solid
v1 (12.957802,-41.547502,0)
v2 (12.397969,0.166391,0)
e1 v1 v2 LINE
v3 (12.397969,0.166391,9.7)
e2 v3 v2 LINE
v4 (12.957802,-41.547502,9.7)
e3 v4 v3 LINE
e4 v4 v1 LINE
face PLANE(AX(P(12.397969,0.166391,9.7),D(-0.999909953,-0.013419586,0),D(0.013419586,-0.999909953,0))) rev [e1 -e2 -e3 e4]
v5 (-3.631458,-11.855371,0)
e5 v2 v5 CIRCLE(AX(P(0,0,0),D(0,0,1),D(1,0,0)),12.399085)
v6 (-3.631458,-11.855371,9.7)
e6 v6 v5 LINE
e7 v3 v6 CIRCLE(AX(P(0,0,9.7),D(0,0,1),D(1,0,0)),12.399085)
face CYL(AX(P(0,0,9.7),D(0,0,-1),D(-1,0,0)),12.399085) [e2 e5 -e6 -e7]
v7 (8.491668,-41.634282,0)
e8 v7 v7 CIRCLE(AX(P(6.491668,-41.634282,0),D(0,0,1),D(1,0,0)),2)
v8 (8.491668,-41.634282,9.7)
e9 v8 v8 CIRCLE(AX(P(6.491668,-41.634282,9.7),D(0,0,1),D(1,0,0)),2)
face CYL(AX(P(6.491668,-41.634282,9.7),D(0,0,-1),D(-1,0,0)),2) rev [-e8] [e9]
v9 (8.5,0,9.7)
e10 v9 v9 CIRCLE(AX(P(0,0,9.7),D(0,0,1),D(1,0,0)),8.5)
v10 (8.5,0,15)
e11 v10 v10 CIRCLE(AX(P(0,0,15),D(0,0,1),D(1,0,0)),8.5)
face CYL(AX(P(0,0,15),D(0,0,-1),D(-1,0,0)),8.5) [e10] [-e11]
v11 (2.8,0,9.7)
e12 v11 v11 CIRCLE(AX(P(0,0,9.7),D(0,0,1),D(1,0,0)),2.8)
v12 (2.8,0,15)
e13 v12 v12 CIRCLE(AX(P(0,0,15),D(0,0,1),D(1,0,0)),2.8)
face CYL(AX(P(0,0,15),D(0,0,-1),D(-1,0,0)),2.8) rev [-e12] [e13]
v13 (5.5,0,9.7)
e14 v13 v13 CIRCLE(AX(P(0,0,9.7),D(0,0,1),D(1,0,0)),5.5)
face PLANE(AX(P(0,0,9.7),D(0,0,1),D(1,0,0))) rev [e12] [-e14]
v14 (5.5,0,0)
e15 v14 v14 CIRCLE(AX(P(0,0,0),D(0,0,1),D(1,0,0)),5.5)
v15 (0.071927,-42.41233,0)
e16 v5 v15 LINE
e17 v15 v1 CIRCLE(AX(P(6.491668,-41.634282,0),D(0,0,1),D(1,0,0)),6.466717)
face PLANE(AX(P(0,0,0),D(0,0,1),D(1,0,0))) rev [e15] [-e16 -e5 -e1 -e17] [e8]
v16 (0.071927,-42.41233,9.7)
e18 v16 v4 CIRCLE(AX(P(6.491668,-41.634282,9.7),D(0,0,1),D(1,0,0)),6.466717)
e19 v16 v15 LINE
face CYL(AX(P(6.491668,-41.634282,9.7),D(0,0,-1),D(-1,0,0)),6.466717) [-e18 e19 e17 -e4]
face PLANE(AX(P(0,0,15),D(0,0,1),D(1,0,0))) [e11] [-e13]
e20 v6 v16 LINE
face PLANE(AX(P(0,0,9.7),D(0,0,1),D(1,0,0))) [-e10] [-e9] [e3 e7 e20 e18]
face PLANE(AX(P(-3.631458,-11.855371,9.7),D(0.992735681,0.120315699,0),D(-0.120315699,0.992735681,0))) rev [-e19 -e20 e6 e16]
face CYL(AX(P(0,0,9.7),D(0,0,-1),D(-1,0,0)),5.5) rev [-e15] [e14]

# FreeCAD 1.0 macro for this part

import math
import FreeCAD as App
import Part
import Sketcher

V = App.Vector

doc = App.newDocument("Part")
body = doc.addObject("PartDesign::Body", "Body")

# Sketch on XY plane
sketch1 = body.newObject("Sketcher::SketchObject", "Sketch")
sketch1.AttachmentSupport = (doc.getObject("XY_Plane"), [""])
sketch1.MapMode = "FlatFace"
sketch1.addGeometry([
    Part.LineSegment(V(-3.631458, -11.855371, 0), V(0.071927, -42.41233, 0)),  # 0
    Part.ArcOfCircle(Part.Circle(V(6.491668, -41.634282, 0), V(0, 0, 1), 6.466717), math.radians(-173.089677), math.radians(0.768909)),  # 1
    Part.LineSegment(V(12.957802, -41.547502, 0), V(12.397969, 0.166391, 0)),  # 2
    Part.ArcOfCircle(Part.Circle(V(0, 0, 0), V(0, 0, 1), 12.399085), math.radians(0.768909), math.radians(252.969478)),  # 3
    Part.Circle(V(6.491668, -41.634282, 0), V(0, 0, 1), 2),  # 4
    Part.Circle(V(0, 0, 0), V(0, 0, 1), 5.5),  # 5
], False)
sketch1.addConstraint([
    Sketcher.Constraint("Tangent", 0, 2, 1, 1),
    Sketcher.Constraint("Tangent", 1, 2, 2, 1),
    Sketcher.Constraint("Tangent", 2, 2, 3, 1),
    Sketcher.Constraint("Coincident", 3, 2, 0, 1),
    Sketcher.Constraint("Coincident", 3, 3, -1, 1),
    Sketcher.Constraint("Coincident", 5, 3, -1, 1),
    Sketcher.Constraint("Coincident", 4, 3, 1, 3),
    Sketcher.Constraint("Diameter", 4, 4.0),
    Sketcher.Constraint("Diameter", 5, 11.0),
    Sketcher.Constraint("Radius", 1, 6.466717),
    Sketcher.Constraint("Radius", 3, 12.399085),
    Sketcher.Constraint("DistanceY", 1, 2, -1, 1, 41.547502),
    Sketcher.Constraint("DistanceX", 4, 3, 2, 2, 5.906301),
    Sketcher.Constraint("Distance", 0, 30.780558),
])
pad1 = body.newObject("PartDesign::Pad", "Pad")
pad1.Profile = sketch1
pad1.Length = 9.7

# Sketch on XY plane
sketch2 = body.newObject("Sketcher::SketchObject", "Sketch001")
sketch2.AttachmentSupport = (doc.getObject("XY_Plane"), [""])
sketch2.MapMode = "FlatFace"
sketch2.AttachmentOffset = App.Placement(V(0, 0, 9.7), App.Rotation())
sketch2.addGeometry([
    Part.Circle(V(0, 0, 0), V(0, 0, 1), 8.5),
    Part.Circle(V(0, 0, 0), V(0, 0, 1), 2.8),
], False)
sketch2.addConstraint([
    Sketcher.Constraint("Coincident", 0, 3, -1, 1),
    Sketcher.Constraint("Coincident", 1, 3, -1, 1),
    Sketcher.Constraint("Diameter", 0, 17.0),
    Sketcher.Constraint("Diameter", 1, 5.6),
])
pad2 = body.newObject("PartDesign::Pad", "Pad001")
pad2.Profile = sketch2
pad2.Length = 5.3

doc.recompute()
